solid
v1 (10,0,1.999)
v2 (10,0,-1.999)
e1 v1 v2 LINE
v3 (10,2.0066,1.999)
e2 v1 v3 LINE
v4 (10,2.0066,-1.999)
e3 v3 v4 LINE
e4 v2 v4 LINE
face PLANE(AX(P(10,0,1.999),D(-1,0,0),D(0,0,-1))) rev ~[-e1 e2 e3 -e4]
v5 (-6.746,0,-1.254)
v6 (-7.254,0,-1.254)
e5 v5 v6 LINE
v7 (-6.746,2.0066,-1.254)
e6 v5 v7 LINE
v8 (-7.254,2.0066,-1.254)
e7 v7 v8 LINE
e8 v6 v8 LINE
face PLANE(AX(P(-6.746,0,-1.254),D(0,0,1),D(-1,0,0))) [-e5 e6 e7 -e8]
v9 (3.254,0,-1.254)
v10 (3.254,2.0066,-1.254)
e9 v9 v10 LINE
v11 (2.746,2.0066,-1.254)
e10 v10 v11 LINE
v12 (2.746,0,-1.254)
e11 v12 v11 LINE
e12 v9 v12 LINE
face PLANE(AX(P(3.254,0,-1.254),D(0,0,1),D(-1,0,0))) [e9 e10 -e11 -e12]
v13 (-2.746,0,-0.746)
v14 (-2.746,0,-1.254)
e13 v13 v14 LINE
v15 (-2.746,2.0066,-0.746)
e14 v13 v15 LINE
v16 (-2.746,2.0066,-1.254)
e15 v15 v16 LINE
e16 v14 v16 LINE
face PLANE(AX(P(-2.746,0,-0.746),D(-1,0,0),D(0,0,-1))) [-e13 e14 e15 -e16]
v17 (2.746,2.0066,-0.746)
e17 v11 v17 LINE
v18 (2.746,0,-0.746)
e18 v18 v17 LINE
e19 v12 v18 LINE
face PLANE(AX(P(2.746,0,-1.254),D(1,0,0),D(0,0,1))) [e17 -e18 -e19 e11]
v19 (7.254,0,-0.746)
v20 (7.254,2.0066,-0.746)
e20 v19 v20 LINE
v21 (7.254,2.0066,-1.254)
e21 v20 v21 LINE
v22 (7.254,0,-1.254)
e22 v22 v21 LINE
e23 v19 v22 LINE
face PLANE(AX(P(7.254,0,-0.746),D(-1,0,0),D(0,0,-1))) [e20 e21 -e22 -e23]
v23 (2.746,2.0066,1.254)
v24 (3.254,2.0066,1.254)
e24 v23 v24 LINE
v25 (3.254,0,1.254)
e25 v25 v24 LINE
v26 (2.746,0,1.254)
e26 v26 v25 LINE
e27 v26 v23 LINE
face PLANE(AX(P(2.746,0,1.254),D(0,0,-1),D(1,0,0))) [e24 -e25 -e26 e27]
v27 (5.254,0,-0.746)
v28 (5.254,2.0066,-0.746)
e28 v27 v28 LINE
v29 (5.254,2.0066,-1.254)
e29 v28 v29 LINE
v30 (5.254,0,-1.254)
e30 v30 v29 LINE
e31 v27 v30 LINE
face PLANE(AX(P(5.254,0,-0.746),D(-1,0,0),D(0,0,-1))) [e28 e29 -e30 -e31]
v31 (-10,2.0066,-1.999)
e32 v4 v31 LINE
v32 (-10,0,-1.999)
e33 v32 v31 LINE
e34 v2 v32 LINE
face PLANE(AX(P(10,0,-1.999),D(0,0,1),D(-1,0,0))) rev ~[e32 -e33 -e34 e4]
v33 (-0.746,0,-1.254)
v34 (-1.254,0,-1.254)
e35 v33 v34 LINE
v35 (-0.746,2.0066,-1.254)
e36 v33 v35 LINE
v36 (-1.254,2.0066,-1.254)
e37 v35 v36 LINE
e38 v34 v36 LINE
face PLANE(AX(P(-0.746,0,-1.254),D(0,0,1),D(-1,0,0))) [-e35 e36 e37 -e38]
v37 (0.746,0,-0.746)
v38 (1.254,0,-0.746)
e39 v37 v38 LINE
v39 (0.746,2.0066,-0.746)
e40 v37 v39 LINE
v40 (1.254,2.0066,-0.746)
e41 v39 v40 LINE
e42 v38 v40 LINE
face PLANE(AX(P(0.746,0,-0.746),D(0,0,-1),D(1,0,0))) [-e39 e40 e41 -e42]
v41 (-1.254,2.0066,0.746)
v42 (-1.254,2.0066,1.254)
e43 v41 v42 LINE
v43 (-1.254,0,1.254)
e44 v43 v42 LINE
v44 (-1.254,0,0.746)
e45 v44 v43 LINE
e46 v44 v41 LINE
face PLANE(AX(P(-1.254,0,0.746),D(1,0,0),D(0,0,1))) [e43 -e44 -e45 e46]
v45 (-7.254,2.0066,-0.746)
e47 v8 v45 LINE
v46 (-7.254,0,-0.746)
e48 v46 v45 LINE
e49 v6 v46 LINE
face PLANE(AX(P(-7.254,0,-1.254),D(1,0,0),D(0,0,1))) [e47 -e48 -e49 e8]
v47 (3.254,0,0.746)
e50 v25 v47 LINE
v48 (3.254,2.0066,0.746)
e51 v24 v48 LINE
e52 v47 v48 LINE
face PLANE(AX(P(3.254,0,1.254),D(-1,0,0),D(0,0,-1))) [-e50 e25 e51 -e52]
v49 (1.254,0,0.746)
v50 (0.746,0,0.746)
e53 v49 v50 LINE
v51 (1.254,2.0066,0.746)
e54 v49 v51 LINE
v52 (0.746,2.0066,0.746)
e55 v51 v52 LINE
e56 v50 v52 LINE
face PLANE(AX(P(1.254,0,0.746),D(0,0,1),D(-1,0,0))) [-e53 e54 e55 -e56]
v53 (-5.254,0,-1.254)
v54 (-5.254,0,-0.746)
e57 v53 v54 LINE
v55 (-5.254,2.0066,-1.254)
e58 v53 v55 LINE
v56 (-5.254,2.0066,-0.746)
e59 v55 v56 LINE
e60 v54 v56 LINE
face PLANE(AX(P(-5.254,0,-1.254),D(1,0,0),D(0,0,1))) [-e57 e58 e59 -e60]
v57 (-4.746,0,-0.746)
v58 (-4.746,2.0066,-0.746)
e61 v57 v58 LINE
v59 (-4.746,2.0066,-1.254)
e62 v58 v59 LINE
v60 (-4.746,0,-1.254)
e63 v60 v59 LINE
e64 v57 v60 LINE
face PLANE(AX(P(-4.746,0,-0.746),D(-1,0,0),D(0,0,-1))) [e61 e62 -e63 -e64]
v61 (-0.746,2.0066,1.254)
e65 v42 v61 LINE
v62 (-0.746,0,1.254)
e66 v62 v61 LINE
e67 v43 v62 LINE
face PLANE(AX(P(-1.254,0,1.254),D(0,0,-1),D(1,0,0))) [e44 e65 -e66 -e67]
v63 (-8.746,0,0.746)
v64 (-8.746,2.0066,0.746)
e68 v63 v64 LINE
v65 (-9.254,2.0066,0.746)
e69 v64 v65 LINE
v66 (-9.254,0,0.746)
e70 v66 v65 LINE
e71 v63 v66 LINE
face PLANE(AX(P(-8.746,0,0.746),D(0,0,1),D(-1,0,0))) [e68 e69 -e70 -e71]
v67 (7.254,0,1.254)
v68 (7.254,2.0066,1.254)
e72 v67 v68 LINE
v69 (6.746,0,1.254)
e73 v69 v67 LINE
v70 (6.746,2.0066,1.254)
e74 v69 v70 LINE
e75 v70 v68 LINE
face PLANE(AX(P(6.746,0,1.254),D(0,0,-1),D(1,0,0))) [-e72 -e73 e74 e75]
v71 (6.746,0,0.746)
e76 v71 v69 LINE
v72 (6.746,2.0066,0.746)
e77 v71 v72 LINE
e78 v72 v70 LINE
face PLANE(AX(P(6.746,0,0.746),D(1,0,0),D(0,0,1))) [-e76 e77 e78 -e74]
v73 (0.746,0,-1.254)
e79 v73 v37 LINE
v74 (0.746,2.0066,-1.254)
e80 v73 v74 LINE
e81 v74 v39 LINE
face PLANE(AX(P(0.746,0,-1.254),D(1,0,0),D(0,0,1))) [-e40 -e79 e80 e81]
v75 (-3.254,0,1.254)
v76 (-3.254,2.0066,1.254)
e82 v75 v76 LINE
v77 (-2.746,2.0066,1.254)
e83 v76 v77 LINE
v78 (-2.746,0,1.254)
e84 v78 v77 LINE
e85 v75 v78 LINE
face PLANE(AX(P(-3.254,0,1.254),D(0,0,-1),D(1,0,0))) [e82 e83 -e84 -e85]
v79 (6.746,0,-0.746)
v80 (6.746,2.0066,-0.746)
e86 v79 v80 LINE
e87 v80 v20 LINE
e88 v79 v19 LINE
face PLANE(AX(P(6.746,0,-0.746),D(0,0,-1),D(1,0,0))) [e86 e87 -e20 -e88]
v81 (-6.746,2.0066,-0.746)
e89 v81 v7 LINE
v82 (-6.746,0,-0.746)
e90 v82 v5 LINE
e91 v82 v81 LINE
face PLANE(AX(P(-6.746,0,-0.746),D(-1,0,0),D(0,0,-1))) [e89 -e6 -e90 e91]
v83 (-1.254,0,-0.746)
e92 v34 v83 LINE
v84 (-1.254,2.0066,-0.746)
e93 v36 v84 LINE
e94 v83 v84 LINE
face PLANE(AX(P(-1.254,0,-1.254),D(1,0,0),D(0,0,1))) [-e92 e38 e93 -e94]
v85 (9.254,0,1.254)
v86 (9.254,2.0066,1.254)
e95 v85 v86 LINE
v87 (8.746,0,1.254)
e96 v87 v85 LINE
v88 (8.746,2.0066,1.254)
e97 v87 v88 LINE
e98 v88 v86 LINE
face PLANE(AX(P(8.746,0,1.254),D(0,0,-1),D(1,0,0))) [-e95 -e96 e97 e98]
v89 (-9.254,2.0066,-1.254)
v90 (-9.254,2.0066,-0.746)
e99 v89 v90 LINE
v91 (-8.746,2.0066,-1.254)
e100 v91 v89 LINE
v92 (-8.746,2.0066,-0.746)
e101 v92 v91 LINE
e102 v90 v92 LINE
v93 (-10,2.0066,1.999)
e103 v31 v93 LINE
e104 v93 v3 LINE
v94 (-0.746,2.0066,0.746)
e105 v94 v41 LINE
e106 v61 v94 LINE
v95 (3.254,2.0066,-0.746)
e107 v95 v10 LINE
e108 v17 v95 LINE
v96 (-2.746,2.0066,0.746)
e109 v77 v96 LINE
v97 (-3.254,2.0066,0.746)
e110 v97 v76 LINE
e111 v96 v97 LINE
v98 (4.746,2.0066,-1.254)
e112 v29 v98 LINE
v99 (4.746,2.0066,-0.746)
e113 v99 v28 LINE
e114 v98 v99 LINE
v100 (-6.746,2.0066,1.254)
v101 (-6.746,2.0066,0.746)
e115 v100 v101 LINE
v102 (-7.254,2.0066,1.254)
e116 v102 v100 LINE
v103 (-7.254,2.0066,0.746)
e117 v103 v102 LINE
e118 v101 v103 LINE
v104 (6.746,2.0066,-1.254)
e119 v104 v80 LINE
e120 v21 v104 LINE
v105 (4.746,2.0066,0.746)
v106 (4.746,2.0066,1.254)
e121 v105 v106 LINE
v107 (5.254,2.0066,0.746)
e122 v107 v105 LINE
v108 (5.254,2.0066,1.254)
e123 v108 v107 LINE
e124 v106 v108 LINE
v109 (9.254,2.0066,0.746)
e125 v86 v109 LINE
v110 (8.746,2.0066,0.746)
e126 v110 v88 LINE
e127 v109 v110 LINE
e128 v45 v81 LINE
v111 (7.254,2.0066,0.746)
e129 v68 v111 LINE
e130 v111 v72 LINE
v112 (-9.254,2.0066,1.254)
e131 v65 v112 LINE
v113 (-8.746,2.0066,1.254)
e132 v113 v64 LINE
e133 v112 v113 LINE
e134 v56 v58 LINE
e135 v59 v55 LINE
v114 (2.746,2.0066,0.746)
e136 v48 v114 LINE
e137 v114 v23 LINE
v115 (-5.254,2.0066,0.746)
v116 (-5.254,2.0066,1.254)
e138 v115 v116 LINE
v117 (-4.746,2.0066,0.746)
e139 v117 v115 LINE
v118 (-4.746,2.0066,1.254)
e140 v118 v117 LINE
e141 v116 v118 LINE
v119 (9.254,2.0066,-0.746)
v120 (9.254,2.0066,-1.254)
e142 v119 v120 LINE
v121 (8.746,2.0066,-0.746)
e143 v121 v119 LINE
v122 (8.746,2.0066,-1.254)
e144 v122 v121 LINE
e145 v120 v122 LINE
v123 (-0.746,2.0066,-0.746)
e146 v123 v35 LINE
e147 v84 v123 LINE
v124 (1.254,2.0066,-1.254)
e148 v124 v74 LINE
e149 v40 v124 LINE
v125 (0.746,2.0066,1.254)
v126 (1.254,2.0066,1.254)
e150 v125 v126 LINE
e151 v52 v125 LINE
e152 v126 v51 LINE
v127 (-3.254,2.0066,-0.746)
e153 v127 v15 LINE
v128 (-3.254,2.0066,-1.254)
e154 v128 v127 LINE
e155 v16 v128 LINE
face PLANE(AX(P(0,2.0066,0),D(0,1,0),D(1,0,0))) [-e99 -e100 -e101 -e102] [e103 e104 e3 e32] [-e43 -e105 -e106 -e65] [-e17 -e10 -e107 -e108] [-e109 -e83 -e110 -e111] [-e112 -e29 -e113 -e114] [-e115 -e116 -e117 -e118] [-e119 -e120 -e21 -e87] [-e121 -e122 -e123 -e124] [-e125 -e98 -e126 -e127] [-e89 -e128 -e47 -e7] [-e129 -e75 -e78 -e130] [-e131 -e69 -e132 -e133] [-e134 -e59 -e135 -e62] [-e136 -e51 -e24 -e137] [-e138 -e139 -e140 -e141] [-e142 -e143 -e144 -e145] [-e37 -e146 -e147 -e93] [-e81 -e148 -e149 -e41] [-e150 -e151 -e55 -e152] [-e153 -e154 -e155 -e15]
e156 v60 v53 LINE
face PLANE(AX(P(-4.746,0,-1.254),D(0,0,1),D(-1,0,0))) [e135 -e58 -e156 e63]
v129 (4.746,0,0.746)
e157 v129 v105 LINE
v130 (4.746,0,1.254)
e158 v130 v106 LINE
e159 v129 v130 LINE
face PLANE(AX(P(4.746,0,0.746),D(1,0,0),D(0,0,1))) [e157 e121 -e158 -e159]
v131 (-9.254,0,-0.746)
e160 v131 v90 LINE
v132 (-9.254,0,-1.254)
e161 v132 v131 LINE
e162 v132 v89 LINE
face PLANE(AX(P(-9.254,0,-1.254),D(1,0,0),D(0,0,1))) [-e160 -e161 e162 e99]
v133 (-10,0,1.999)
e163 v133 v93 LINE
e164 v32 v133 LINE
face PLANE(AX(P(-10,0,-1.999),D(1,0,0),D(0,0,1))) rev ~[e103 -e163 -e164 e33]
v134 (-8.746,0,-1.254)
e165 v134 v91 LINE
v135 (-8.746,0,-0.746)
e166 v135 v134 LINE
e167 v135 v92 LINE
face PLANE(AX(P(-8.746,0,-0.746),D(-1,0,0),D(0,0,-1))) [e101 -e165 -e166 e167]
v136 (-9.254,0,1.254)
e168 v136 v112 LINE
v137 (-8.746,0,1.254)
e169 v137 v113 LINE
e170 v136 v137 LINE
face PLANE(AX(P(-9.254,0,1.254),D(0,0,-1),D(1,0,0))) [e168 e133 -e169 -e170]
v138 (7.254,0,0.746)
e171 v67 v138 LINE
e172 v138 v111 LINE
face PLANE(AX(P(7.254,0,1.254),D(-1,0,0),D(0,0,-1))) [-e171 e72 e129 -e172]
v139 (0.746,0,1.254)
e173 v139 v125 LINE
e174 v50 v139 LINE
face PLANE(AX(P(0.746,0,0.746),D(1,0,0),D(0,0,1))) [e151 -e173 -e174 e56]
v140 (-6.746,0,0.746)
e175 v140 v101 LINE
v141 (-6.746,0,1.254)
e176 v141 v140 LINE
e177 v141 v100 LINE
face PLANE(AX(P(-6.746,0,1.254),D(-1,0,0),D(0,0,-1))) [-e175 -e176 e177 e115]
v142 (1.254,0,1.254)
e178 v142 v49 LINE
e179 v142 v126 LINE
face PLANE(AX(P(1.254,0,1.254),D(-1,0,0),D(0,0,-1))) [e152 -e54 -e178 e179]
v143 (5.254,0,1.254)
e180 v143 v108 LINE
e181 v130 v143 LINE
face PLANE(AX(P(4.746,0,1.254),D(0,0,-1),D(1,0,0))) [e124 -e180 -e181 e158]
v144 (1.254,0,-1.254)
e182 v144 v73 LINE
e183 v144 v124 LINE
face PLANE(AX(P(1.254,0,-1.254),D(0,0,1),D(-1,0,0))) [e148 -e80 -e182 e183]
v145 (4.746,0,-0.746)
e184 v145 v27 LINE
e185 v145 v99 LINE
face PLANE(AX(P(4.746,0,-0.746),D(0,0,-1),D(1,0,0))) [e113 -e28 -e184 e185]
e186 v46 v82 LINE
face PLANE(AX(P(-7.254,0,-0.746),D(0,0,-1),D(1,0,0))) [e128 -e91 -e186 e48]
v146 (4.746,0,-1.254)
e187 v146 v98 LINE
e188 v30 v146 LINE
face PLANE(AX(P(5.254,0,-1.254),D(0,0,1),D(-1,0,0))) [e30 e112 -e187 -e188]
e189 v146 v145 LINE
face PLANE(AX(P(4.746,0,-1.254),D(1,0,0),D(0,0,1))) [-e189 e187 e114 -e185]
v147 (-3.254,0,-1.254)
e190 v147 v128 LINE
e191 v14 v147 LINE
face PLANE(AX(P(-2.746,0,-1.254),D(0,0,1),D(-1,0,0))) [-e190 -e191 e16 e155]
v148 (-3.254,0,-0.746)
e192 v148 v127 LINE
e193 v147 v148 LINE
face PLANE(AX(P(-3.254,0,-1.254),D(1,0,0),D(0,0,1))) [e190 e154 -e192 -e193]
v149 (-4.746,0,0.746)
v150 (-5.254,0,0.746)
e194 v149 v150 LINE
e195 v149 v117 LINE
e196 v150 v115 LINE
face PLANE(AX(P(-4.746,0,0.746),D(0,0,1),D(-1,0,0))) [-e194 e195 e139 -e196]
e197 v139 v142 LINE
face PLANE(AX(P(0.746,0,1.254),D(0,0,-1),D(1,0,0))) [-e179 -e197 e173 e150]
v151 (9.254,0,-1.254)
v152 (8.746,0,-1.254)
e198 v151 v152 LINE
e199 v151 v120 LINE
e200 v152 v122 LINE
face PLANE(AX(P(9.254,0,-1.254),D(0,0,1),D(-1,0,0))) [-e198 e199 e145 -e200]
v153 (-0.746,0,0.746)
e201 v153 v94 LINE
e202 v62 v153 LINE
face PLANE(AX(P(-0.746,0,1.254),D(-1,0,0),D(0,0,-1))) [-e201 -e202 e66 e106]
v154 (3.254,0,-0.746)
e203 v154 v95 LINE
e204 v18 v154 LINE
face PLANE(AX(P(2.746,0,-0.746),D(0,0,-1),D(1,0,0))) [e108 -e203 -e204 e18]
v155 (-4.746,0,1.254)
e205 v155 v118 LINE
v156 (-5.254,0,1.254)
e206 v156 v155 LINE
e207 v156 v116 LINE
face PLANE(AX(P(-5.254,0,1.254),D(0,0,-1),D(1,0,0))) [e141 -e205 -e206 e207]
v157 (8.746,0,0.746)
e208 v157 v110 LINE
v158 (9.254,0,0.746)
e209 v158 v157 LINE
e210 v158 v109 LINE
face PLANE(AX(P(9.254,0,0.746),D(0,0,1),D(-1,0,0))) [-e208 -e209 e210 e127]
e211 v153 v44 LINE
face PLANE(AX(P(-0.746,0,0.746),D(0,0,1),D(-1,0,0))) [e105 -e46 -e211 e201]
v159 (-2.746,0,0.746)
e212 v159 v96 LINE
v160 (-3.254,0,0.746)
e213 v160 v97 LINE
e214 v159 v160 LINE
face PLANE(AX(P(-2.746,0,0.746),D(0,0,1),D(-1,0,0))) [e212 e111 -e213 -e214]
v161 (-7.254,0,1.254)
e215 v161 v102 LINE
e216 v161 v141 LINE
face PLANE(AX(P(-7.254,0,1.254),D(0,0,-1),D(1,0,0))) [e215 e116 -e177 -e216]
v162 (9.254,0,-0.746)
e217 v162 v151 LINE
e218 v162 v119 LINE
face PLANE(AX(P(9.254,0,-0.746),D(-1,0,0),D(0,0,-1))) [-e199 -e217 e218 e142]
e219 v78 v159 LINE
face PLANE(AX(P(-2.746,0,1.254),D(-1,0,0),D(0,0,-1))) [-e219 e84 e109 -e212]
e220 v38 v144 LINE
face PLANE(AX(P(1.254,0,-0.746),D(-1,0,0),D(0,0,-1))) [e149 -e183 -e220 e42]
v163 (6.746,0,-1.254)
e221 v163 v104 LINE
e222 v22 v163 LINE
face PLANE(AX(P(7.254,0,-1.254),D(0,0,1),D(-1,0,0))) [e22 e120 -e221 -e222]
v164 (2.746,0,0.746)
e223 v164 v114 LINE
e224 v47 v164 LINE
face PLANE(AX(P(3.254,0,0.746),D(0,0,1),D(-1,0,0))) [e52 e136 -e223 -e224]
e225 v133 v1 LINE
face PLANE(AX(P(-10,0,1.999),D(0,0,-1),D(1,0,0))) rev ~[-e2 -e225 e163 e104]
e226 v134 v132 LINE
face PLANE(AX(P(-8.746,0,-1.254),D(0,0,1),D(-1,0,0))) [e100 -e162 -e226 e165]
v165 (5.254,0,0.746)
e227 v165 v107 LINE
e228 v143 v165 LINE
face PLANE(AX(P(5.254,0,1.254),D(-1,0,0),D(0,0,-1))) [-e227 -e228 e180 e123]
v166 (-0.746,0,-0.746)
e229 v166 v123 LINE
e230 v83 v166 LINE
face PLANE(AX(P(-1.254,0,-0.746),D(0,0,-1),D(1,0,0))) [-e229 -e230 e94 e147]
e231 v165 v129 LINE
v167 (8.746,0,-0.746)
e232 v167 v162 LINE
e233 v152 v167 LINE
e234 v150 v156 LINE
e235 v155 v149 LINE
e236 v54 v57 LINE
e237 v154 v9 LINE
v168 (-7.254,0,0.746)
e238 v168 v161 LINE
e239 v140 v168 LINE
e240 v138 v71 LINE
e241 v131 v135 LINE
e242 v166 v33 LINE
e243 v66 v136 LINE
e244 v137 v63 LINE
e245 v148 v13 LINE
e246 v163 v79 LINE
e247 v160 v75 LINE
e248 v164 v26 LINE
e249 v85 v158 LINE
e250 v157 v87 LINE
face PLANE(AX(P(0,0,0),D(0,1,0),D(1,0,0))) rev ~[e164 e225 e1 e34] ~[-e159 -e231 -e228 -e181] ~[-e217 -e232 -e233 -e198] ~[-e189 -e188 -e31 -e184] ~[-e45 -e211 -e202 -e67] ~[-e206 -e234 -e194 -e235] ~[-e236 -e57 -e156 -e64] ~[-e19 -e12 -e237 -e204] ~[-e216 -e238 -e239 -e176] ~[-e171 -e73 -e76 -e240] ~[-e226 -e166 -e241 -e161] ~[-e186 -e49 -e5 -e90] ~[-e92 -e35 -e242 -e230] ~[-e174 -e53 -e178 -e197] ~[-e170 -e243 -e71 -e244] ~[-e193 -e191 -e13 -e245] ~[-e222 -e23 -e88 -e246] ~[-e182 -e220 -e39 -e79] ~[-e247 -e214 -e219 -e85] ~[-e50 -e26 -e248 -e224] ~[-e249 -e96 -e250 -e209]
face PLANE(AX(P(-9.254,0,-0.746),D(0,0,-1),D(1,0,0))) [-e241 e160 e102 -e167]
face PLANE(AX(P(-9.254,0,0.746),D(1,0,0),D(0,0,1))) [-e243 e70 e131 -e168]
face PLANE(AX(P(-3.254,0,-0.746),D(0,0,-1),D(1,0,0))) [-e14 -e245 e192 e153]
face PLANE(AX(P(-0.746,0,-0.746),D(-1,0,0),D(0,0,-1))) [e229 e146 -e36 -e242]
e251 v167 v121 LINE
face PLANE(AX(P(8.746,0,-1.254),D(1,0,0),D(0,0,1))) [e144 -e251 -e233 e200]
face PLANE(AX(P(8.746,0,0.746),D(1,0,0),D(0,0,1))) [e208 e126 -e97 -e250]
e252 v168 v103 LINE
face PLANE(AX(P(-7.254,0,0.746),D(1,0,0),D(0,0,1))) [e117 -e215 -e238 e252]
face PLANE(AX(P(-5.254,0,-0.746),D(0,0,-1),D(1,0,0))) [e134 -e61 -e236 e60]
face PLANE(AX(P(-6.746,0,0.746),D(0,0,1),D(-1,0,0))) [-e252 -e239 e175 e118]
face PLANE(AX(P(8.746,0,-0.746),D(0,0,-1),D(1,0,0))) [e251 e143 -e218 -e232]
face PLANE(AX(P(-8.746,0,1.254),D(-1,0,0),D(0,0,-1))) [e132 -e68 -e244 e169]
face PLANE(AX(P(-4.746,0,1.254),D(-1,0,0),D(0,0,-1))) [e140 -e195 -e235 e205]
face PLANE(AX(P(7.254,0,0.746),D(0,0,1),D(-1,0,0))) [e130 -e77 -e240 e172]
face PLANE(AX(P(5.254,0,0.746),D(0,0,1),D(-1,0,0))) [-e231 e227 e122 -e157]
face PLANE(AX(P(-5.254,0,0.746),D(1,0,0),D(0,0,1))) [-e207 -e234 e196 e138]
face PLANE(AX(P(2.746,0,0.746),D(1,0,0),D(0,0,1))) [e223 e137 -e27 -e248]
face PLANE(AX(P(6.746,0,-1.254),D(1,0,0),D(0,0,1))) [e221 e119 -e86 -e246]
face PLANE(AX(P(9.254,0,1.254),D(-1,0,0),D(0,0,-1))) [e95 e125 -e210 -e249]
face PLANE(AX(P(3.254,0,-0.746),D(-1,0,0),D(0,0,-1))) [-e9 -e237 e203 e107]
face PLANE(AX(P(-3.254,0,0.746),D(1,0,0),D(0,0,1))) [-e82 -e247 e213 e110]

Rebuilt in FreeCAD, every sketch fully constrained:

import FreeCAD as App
import Part
import Sketcher
Q = App.Units.Quantity

doc = App.newDocument("Part")
body = doc.addObject("PartDesign::Body", "Body")

# Sketch on XZ plane
sketch1 = body.newObject("Sketcher::SketchObject", "Sketch")
sketch1.AttachmentSupport = (doc.getObject("XZ_Plane"), [""])
sketch1.MapMode = "FlatFace"
sketch1.addGeometry(Part.LineSegment(App.Vector(-10, -2, 0), App.Vector(-10, 2, 0)), False)
sketch1.addGeometry(Part.LineSegment(App.Vector(-10, 2, 0), App.Vector(10, 2, 0)), False)
sketch1.addGeometry(Part.LineSegment(App.Vector(10, 2, 0), App.Vector(10, -2, 0)), False)
sketch1.addGeometry(Part.LineSegment(App.Vector(10, -2, 0), App.Vector(-10, -2, 0)), False)
sketch1.addGeometry(Part.LineSegment(App.Vector(-8.7, 1.3, 0), App.Vector(-9.3, 1.3, 0)), False)
sketch1.addGeometry(Part.LineSegment(App.Vector(-9.3, 1.3, 0), App.Vector(-9.3, 0.7, 0)), False)
sketch1.addGeometry(Part.LineSegment(App.Vector(-9.3, 0.7, 0), App.Vector(-8.7, 0.7, 0)), False)
sketch1.addGeometry(Part.LineSegment(App.Vector(-8.7, 0.7, 0), App.Vector(-8.7, 1.3, 0)), False)
sketch1.addGeometry(Part.LineSegment(App.Vector(-6.7, 1.3, 0), App.Vector(-7.3, 1.3, 0)), False)
sketch1.addGeometry(Part.LineSegment(App.Vector(-7.3, 1.3, 0), App.Vector(-7.3, 0.7, 0)), False)
sketch1.addGeometry(Part.LineSegment(App.Vector(-7.3, 0.7, 0), App.Vector(-6.7, 0.7, 0)), False)
sketch1.addGeometry(Part.LineSegment(App.Vector(-6.7, 0.7, 0), App.Vector(-6.7, 1.3, 0)), False)
sketch1.addGeometry(Part.LineSegment(App.Vector(-4.7, 1.3, 0), App.Vector(-5.3, 1.3, 0)), False)
sketch1.addGeometry(Part.LineSegment(App.Vector(-5.3, 1.3, 0), App.Vector(-5.3, 0.7, 0)), False)
sketch1.addGeometry(Part.LineSegment(App.Vector(-5.3, 0.7, 0), App.Vector(-4.7, 0.7, 0)), False)
sketch1.addGeometry(Part.LineSegment(App.Vector(-4.7, 0.7, 0), App.Vector(-4.7, 1.3, 0)), False)
sketch1.addGeometry(Part.LineSegment(App.Vector(-2.7, 1.3, 0), App.Vector(-3.3, 1.3, 0)), False)
sketch1.addGeometry(Part.LineSegment(App.Vector(-3.3, 1.3, 0), App.Vector(-3.3, 0.7, 0)), False)
sketch1.addGeometry(Part.LineSegment(App.Vector(-3.3, 0.7, 0), App.Vector(-2.7, 0.7, 0)), False)
sketch1.addGeometry(Part.LineSegment(App.Vector(-2.7, 0.7, 0), App.Vector(-2.7, 1.3, 0)), False)
sketch1.addGeometry(Part.LineSegment(App.Vector(-0.7, 1.3, 0), App.Vector(-1.3, 1.3, 0)), False)
sketch1.addGeometry(Part.LineSegment(App.Vector(-1.3, 1.3, 0), App.Vector(-1.3, 0.7, 0)), False)
sketch1.addGeometry(Part.LineSegment(App.Vector(-1.3, 0.7, 0), App.Vector(-0.7, 0.7, 0)), False)
sketch1.addGeometry(Part.LineSegment(App.Vector(-0.7, 0.7, 0), App.Vector(-0.7, 1.3, 0)), False)
sketch1.addGeometry(Part.LineSegment(App.Vector(1.3, 1.3, 0), App.Vector(0.7, 1.3, 0)), False)
sketch1.addGeometry(Part.LineSegment(App.Vector(0.7, 1.3, 0), App.Vector(0.7, 0.7, 0)), False)
sketch1.addGeometry(Part.LineSegment(App.Vector(0.7, 0.7, 0), App.Vector(1.3, 0.7, 0)), False)
sketch1.addGeometry(Part.LineSegment(App.Vector(1.3, 0.7, 0), App.Vector(1.3, 1.3, 0)), False)
sketch1.addGeometry(Part.LineSegment(App.Vector(3.3, 1.3, 0), App.Vector(2.7, 1.3, 0)), False)
sketch1.addGeometry(Part.LineSegment(App.Vector(2.7, 1.3, 0), App.Vector(2.7, 0.7, 0)), False)
sketch1.addGeometry(Part.LineSegment(App.Vector(2.7, 0.7, 0), App.Vector(3.3, 0.7, 0)), False)
sketch1.addGeometry(Part.LineSegment(App.Vector(3.3, 0.7, 0), App.Vector(3.3, 1.3, 0)), False)
sketch1.addGeometry(Part.LineSegment(App.Vector(5.3, 1.3, 0), App.Vector(4.7, 1.3, 0)), False)
sketch1.addGeometry(Part.LineSegment(App.Vector(4.7, 1.3, 0), App.Vector(4.7, 0.7, 0)), False)
sketch1.addGeometry(Part.LineSegment(App.Vector(4.7, 0.7, 0), App.Vector(5.3, 0.7, 0)), False)
sketch1.addGeometry(Part.LineSegment(App.Vector(5.3, 0.7, 0), App.Vector(5.3, 1.3, 0)), False)
sketch1.addGeometry(Part.LineSegment(App.Vector(7.3, 1.3, 0), App.Vector(6.7, 1.3, 0)), False)
sketch1.addGeometry(Part.LineSegment(App.Vector(6.7, 1.3, 0), App.Vector(6.7, 0.7, 0)), False)
sketch1.addGeometry(Part.LineSegment(App.Vector(6.7, 0.7, 0), App.Vector(7.3, 0.7, 0)), False)
sketch1.addGeometry(Part.LineSegment(App.Vector(7.3, 0.7, 0), App.Vector(7.3, 1.3, 0)), False)
sketch1.addGeometry(Part.LineSegment(App.Vector(9.3, 1.3, 0), App.Vector(8.7, 1.3, 0)), False)
sketch1.addGeometry(Part.LineSegment(App.Vector(8.7, 1.3, 0), App.Vector(8.7, 0.7, 0)), False)
sketch1.addGeometry(Part.LineSegment(App.Vector(8.7, 0.7, 0), App.Vector(9.3, 0.7, 0)), False)
sketch1.addGeometry(Part.LineSegment(App.Vector(9.3, 0.7, 0), App.Vector(9.3, 1.3, 0)), False)
sketch1.addGeometry(Part.LineSegment(App.Vector(-8.7, -0.7, 0), App.Vector(-9.3, -0.7, 0)), False)
sketch1.addGeometry(Part.LineSegment(App.Vector(-9.3, -0.7, 0), App.Vector(-9.3, -1.3, 0)), False)
sketch1.addGeometry(Part.LineSegment(App.Vector(-9.3, -1.3, 0), App.Vector(-8.7, -1.3, 0)), False)
sketch1.addGeometry(Part.LineSegment(App.Vector(-8.7, -1.3, 0), App.Vector(-8.7, -0.7, 0)), False)
sketch1.addGeometry(Part.LineSegment(App.Vector(-6.7, -0.7, 0), App.Vector(-7.3, -0.7, 0)), False)
sketch1.addGeometry(Part.LineSegment(App.Vector(-7.3, -0.7, 0), App.Vector(-7.3, -1.3, 0)), False)
sketch1.addGeometry(Part.LineSegment(App.Vector(-7.3, -1.3, 0), App.Vector(-6.7, -1.3, 0)), False)
sketch1.addGeometry(Part.LineSegment(App.Vector(-6.7, -1.3, 0), App.Vector(-6.7, -0.7, 0)), False)
sketch1.addGeometry(Part.LineSegment(App.Vector(-4.7, -0.7, 0), App.Vector(-5.3, -0.7, 0)), False)
sketch1.addGeometry(Part.LineSegment(App.Vector(-5.3, -0.7, 0), App.Vector(-5.3, -1.3, 0)), False)
sketch1.addGeometry(Part.LineSegment(App.Vector(-5.3, -1.3, 0), App.Vector(-4.7, -1.3, 0)), False)
sketch1.addGeometry(Part.LineSegment(App.Vector(-4.7, -1.3, 0), App.Vector(-4.7, -0.7, 0)), False)
sketch1.addGeometry(Part.LineSegment(App.Vector(-2.7, -0.7, 0), App.Vector(-3.3, -0.7, 0)), False)
sketch1.addGeometry(Part.LineSegment(App.Vector(-3.3, -0.7, 0), App.Vector(-3.3, -1.3, 0)), False)
sketch1.addGeometry(Part.LineSegment(App.Vector(-3.3, -1.3, 0), App.Vector(-2.7, -1.3, 0)), False)
sketch1.addGeometry(Part.LineSegment(App.Vector(-2.7, -1.3, 0), App.Vector(-2.7, -0.7, 0)), False)
sketch1.addGeometry(Part.LineSegment(App.Vector(-0.7, -0.7, 0), App.Vector(-1.3, -0.7, 0)), False)
sketch1.addGeometry(Part.LineSegment(App.Vector(-1.3, -0.7, 0), App.Vector(-1.3, -1.3, 0)), False)
sketch1.addGeometry(Part.LineSegment(App.Vector(-1.3, -1.3, 0), App.Vector(-0.7, -1.3, 0)), False)
sketch1.addGeometry(Part.LineSegment(App.Vector(-0.7, -1.3, 0), App.Vector(-0.7, -0.7, 0)), False)
sketch1.addGeometry(Part.LineSegment(App.Vector(1.3, -0.7, 0), App.Vector(0.7, -0.7, 0)), False)
sketch1.addGeometry(Part.LineSegment(App.Vector(0.7, -0.7, 0), App.Vector(0.7, -1.3, 0)), False)
sketch1.addGeometry(Part.LineSegment(App.Vector(0.7, -1.3, 0), App.Vector(1.3, -1.3, 0)), False)
sketch1.addGeometry(Part.LineSegment(App.Vector(1.3, -1.3, 0), App.Vector(1.3, -0.7, 0)), False)
sketch1.addGeometry(Part.LineSegment(App.Vector(3.3, -0.7, 0), App.Vector(2.7, -0.7, 0)), False)
sketch1.addGeometry(Part.LineSegment(App.Vector(2.7, -0.7, 0), App.Vector(2.7, -1.3, 0)), False)
sketch1.addGeometry(Part.LineSegment(App.Vector(2.7, -1.3, 0), App.Vector(3.3, -1.3, 0)), False)
sketch1.addGeometry(Part.LineSegment(App.Vector(3.3, -1.3, 0), App.Vector(3.3, -0.7, 0)), False)
sketch1.addGeometry(Part.LineSegment(App.Vector(5.3, -0.7, 0), App.Vector(4.7, -0.7, 0)), False)
sketch1.addGeometry(Part.LineSegment(App.Vector(4.7, -0.7, 0), App.Vector(4.7, -1.3, 0)), False)
sketch1.addGeometry(Part.LineSegment(App.Vector(4.7, -1.3, 0), App.Vector(5.3, -1.3, 0)), False)
sketch1.addGeometry(Part.LineSegment(App.Vector(5.3, -1.3, 0), App.Vector(5.3, -0.7, 0)), False)
sketch1.addGeometry(Part.LineSegment(App.Vector(7.3, -0.7, 0), App.Vector(6.7, -0.7, 0)), False)
sketch1.addGeometry(Part.LineSegment(App.Vector(6.7, -0.7, 0), App.Vector(6.7, -1.3, 0)), False)
sketch1.addGeometry(Part.LineSegment(App.Vector(6.7, -1.3, 0), App.Vector(7.3, -1.3, 0)), False)
sketch1.addGeometry(Part.LineSegment(App.Vector(7.3, -1.3, 0), App.Vector(7.3, -0.7, 0)), False)
sketch1.addGeometry(Part.LineSegment(App.Vector(9.3, -0.7, 0), App.Vector(8.7, -0.7, 0)), False)
sketch1.addGeometry(Part.LineSegment(App.Vector(8.7, -0.7, 0), App.Vector(8.7, -1.3, 0)), False)
sketch1.addGeometry(Part.LineSegment(App.Vector(8.7, -1.3, 0), App.Vector(9.3, -1.3, 0)), False)
sketch1.addGeometry(Part.LineSegment(App.Vector(9.3, -1.3, 0), App.Vector(9.3, -0.7, 0)), False)
sketch1.addConstraint(Sketcher.Constraint("Coincident", 0, 2, 1, 1))
sketch1.addConstraint(Sketcher.Constraint("Coincident", 1, 2, 2, 1))
sketch1.addConstraint(Sketcher.Constraint("Coincident", 2, 2, 3, 1))
sketch1.addConstraint(Sketcher.Constraint("Coincident", 3, 2, 0, 1))
sketch1.addConstraint(Sketcher.Constraint("Coincident", 4, 2, 5, 1))
sketch1.addConstraint(Sketcher.Constraint("Coincident", 5, 2, 6, 1))
sketch1.addConstraint(Sketcher.Constraint("Coincident", 6, 2, 7, 1))
sketch1.addConstraint(Sketcher.Constraint("Coincident", 7, 2, 4, 1))
sketch1.addConstraint(Sketcher.Constraint("Coincident", 8, 2, 9, 1))
sketch1.addConstraint(Sketcher.Constraint("Coincident", 9, 2, 10, 1))
sketch1.addConstraint(Sketcher.Constraint("Coincident", 10, 2, 11, 1))
sketch1.addConstraint(Sketcher.Constraint("Coincident", 11, 2, 8, 1))
sketch1.addConstraint(Sketcher.Constraint("Coincident", 12, 2, 13, 1))
sketch1.addConstraint(Sketcher.Constraint("Coincident", 13, 2, 14, 1))
sketch1.addConstraint(Sketcher.Constraint("Coincident", 14, 2, 15, 1))
sketch1.addConstraint(Sketcher.Constraint("Coincident", 15, 2, 12, 1))
sketch1.addConstraint(Sketcher.Constraint("Coincident", 16, 2, 17, 1))
sketch1.addConstraint(Sketcher.Constraint("Coincident", 17, 2, 18, 1))
sketch1.addConstraint(Sketcher.Constraint("Coincident", 18, 2, 19, 1))
sketch1.addConstraint(Sketcher.Constraint("Coincident", 19, 2, 16, 1))
sketch1.addConstraint(Sketcher.Constraint("Coincident", 20, 2, 21, 1))
sketch1.addConstraint(Sketcher.Constraint("Coincident", 21, 2, 22, 1))
sketch1.addConstraint(Sketcher.Constraint("Coincident", 22, 2, 23, 1))
sketch1.addConstraint(Sketcher.Constraint("Coincident", 23, 2, 20, 1))
sketch1.addConstraint(Sketcher.Constraint("Coincident", 24, 2, 25, 1))
sketch1.addConstraint(Sketcher.Constraint("Coincident", 25, 2, 26, 1))
sketch1.addConstraint(Sketcher.Constraint("Coincident", 26, 2, 27, 1))
sketch1.addConstraint(Sketcher.Constraint("Coincident", 27, 2, 24, 1))
sketch1.addConstraint(Sketcher.Constraint("Coincident", 28, 2, 29, 1))
sketch1.addConstraint(Sketcher.Constraint("Coincident", 29, 2, 30, 1))
sketch1.addConstraint(Sketcher.Constraint("Coincident", 30, 2, 31, 1))
sketch1.addConstraint(Sketcher.Constraint("Coincident", 31, 2, 28, 1))
sketch1.addConstraint(Sketcher.Constraint("Coincident", 32, 2, 33, 1))
sketch1.addConstraint(Sketcher.Constraint("Coincident", 33, 2, 34, 1))
sketch1.addConstraint(Sketcher.Constraint("Coincident", 34, 2, 35, 1))
sketch1.addConstraint(Sketcher.Constraint("Coincident", 35, 2, 32, 1))
sketch1.addConstraint(Sketcher.Constraint("Coincident", 36, 2, 37, 1))
sketch1.addConstraint(Sketcher.Constraint("Coincident", 37, 2, 38, 1))
sketch1.addConstraint(Sketcher.Constraint("Coincident", 38, 2, 39, 1))
sketch1.addConstraint(Sketcher.Constraint("Coincident", 39, 2, 36, 1))
sketch1.addConstraint(Sketcher.Constraint("Coincident", 40, 2, 41, 1))
sketch1.addConstraint(Sketcher.Constraint("Coincident", 41, 2, 42, 1))
sketch1.addConstraint(Sketcher.Constraint("Coincident", 42, 2, 43, 1))
sketch1.addConstraint(Sketcher.Constraint("Coincident", 43, 2, 40, 1))
sketch1.addConstraint(Sketcher.Constraint("Coincident", 44, 2, 45, 1))
sketch1.addConstraint(Sketcher.Constraint("Coincident", 45, 2, 46, 1))
sketch1.addConstraint(Sketcher.Constraint("Coincident", 46, 2, 47, 1))
sketch1.addConstraint(Sketcher.Constraint("Coincident", 47, 2, 44, 1))
sketch1.addConstraint(Sketcher.Constraint("Coincident", 48, 2, 49, 1))
sketch1.addConstraint(Sketcher.Constraint("Coincident", 49, 2, 50, 1))
sketch1.addConstraint(Sketcher.Constraint("Coincident", 50, 2, 51, 1))
sketch1.addConstraint(Sketcher.Constraint("Coincident", 51, 2, 48, 1))
sketch1.addConstraint(Sketcher.Constraint("Coincident", 52, 2, 53, 1))
sketch1.addConstraint(Sketcher.Constraint("Coincident", 53, 2, 54, 1))
sketch1.addConstraint(Sketcher.Constraint("Coincident", 54, 2, 55, 1))
sketch1.addConstraint(Sketcher.Constraint("Coincident", 55, 2, 52, 1))
sketch1.addConstraint(Sketcher.Constraint("Coincident", 56, 2, 57, 1))
sketch1.addConstraint(Sketcher.Constraint("Coincident", 57, 2, 58, 1))
sketch1.addConstraint(Sketcher.Constraint("Coincident", 58, 2, 59, 1))
sketch1.addConstraint(Sketcher.Constraint("Coincident", 59, 2, 56, 1))
sketch1.addConstraint(Sketcher.Constraint("Coincident", 60, 2, 61, 1))
sketch1.addConstraint(Sketcher.Constraint("Coincident", 61, 2, 62, 1))
sketch1.addConstraint(Sketcher.Constraint("Coincident", 62, 2, 63, 1))
sketch1.addConstraint(Sketcher.Constraint("Coincident", 63, 2, 60, 1))
sketch1.addConstraint(Sketcher.Constraint("Coincident", 64, 2, 65, 1))
sketch1.addConstraint(Sketcher.Constraint("Coincident", 65, 2, 66, 1))
sketch1.addConstraint(Sketcher.Constraint("Coincident", 66, 2, 67, 1))
sketch1.addConstraint(Sketcher.Constraint("Coincident", 67, 2, 64, 1))
sketch1.addConstraint(Sketcher.Constraint("Coincident", 68, 2, 69, 1))
sketch1.addConstraint(Sketcher.Constraint("Coincident", 69, 2, 70, 1))
sketch1.addConstraint(Sketcher.Constraint("Coincident", 70, 2, 71, 1))
sketch1.addConstraint(Sketcher.Constraint("Coincident", 71, 2, 68, 1))
sketch1.addConstraint(Sketcher.Constraint("Coincident", 72, 2, 73, 1))
sketch1.addConstraint(Sketcher.Constraint("Coincident", 73, 2, 74, 1))
sketch1.addConstraint(Sketcher.Constraint("Coincident", 74, 2, 75, 1))
sketch1.addConstraint(Sketcher.Constraint("Coincident", 75, 2, 72, 1))
sketch1.addConstraint(Sketcher.Constraint("Coincident", 76, 2, 77, 1))
sketch1.addConstraint(Sketcher.Constraint("Coincident", 77, 2, 78, 1))
sketch1.addConstraint(Sketcher.Constraint("Coincident", 78, 2, 79, 1))
sketch1.addConstraint(Sketcher.Constraint("Coincident", 79, 2, 76, 1))
sketch1.addConstraint(Sketcher.Constraint("Coincident", 80, 2, 81, 1))
sketch1.addConstraint(Sketcher.Constraint("Coincident", 81, 2, 82, 1))
sketch1.addConstraint(Sketcher.Constraint("Coincident", 82, 2, 83, 1))
sketch1.addConstraint(Sketcher.Constraint("Coincident", 83, 2, 80, 1))
sketch1.addConstraint(Sketcher.Constraint("Vertical", 0))
sketch1.addConstraint(Sketcher.Constraint("Horizontal", 1))
sketch1.addConstraint(Sketcher.Constraint("Vertical", 2))
sketch1.addConstraint(Sketcher.Constraint("Horizontal", 3))
sketch1.addConstraint(Sketcher.Constraint("Horizontal", 4))
sketch1.addConstraint(Sketcher.Constraint("Vertical", 5))
sketch1.addConstraint(Sketcher.Constraint("Horizontal", 6))
sketch1.addConstraint(Sketcher.Constraint("Vertical", 7))
sketch1.addConstraint(Sketcher.Constraint("Horizontal", 8))
sketch1.addConstraint(Sketcher.Constraint("Vertical", 9))
sketch1.addConstraint(Sketcher.Constraint("Horizontal", 10))
sketch1.addConstraint(Sketcher.Constraint("Vertical", 11))
sketch1.addConstraint(Sketcher.Constraint("Horizontal", 12))
sketch1.addConstraint(Sketcher.Constraint("Vertical", 13))
sketch1.addConstraint(Sketcher.Constraint("Horizontal", 14))
sketch1.addConstraint(Sketcher.Constraint("Vertical", 15))
sketch1.addConstraint(Sketcher.Constraint("Horizontal", 16))
sketch1.addConstraint(Sketcher.Constraint("Vertical", 17))
sketch1.addConstraint(Sketcher.Constraint("Horizontal", 18))
sketch1.addConstraint(Sketcher.Constraint("Vertical", 19))
sketch1.addConstraint(Sketcher.Constraint("Horizontal", 20))
sketch1.addConstraint(Sketcher.Constraint("Vertical", 21))
sketch1.addConstraint(Sketcher.Constraint("Horizontal", 22))
sketch1.addConstraint(Sketcher.Constraint("Vertical", 23))
sketch1.addConstraint(Sketcher.Constraint("Horizontal", 24))
sketch1.addConstraint(Sketcher.Constraint("Vertical", 25))
sketch1.addConstraint(Sketcher.Constraint("Horizontal", 26))
sketch1.addConstraint(Sketcher.Constraint("Vertical", 27))
sketch1.addConstraint(Sketcher.Constraint("Horizontal", 28))
sketch1.addConstraint(Sketcher.Constraint("Vertical", 29))
sketch1.addConstraint(Sketcher.Constraint("Horizontal", 30))
sketch1.addConstraint(Sketcher.Constraint("Vertical", 31))
sketch1.addConstraint(Sketcher.Constraint("Horizontal", 32))
sketch1.addConstraint(Sketcher.Constraint("Vertical", 33))
sketch1.addConstraint(Sketcher.Constraint("Horizontal", 34))
sketch1.addConstraint(Sketcher.Constraint("Vertical", 35))
sketch1.addConstraint(Sketcher.Constraint("Horizontal", 36))
sketch1.addConstraint(Sketcher.Constraint("Vertical", 37))
sketch1.addConstraint(Sketcher.Constraint("Horizontal", 38))
sketch1.addConstraint(Sketcher.Constraint("Vertical", 39))
sketch1.addConstraint(Sketcher.Constraint("Horizontal", 40))
sketch1.addConstraint(Sketcher.Constraint("Vertical", 41))
sketch1.addConstraint(Sketcher.Constraint("Horizontal", 42))
sketch1.addConstraint(Sketcher.Constraint("Vertical", 43))
sketch1.addConstraint(Sketcher.Constraint("Horizontal", 44))
sketch1.addConstraint(Sketcher.Constraint("Vertical", 45))
sketch1.addConstraint(Sketcher.Constraint("Horizontal", 46))
sketch1.addConstraint(Sketcher.Constraint("Vertical", 47))
sketch1.addConstraint(Sketcher.Constraint("Horizontal", 48))
sketch1.addConstraint(Sketcher.Constraint("Vertical", 49))
sketch1.addConstraint(Sketcher.Constraint("Horizontal", 50))
sketch1.addConstraint(Sketcher.Constraint("Vertical", 51))
sketch1.addConstraint(Sketcher.Constraint("Horizontal", 52))
sketch1.addConstraint(Sketcher.Constraint("Vertical", 53))
sketch1.addConstraint(Sketcher.Constraint("Horizontal", 54))
sketch1.addConstraint(Sketcher.Constraint("Vertical", 55))
sketch1.addConstraint(Sketcher.Constraint("Horizontal", 56))
sketch1.addConstraint(Sketcher.Constraint("Vertical", 57))
sketch1.addConstraint(Sketcher.Constraint("Horizontal", 58))
sketch1.addConstraint(Sketcher.Constraint("Vertical", 59))
sketch1.addConstraint(Sketcher.Constraint("Horizontal", 60))
sketch1.addConstraint(Sketcher.Constraint("Vertical", 61))
sketch1.addConstraint(Sketcher.Constraint("Horizontal", 62))
sketch1.addConstraint(Sketcher.Constraint("Vertical", 63))
sketch1.addConstraint(Sketcher.Constraint("Horizontal", 64))
sketch1.addConstraint(Sketcher.Constraint("Vertical", 65))
sketch1.addConstraint(Sketcher.Constraint("Horizontal", 66))
sketch1.addConstraint(Sketcher.Constraint("Vertical", 67))
sketch1.addConstraint(Sketcher.Constraint("Horizontal", 68))
sketch1.addConstraint(Sketcher.Constraint("Vertical", 69))
sketch1.addConstraint(Sketcher.Constraint("Horizontal", 70))
sketch1.addConstraint(Sketcher.Constraint("Vertical", 71))
sketch1.addConstraint(Sketcher.Constraint("Horizontal", 72))
sketch1.addConstraint(Sketcher.Constraint("Vertical", 73))
sketch1.addConstraint(Sketcher.Constraint("Horizontal", 74))
sketch1.addConstraint(Sketcher.Constraint("Vertical", 75))
sketch1.addConstraint(Sketcher.Constraint("Horizontal", 76))
sketch1.addConstraint(Sketcher.Constraint("Vertical", 77))
sketch1.addConstraint(Sketcher.Constraint("Horizontal", 78))
sketch1.addConstraint(Sketcher.Constraint("Vertical", 79))
sketch1.addConstraint(Sketcher.Constraint("Horizontal", 80))
sketch1.addConstraint(Sketcher.Constraint("Vertical", 81))
sketch1.addConstraint(Sketcher.Constraint("Horizontal", 82))
sketch1.addConstraint(Sketcher.Constraint("Vertical", 83))
sketch1.addConstraint(Sketcher.Constraint("Symmetric", 0, 2, 2, 2, -1, 1))
sketch1.addConstraint(Sketcher.Constraint("Symmetric", 42, 2, 44, 2, -1, 1))
sketch1.addConstraint(Sketcher.Constraint("Symmetric", 40, 2, 46, 2, -1, 1))
sketch1.addConstraint(Sketcher.Constraint("Symmetric", 38, 2, 48, 2, -1, 1))
sketch1.addConstraint(Sketcher.Constraint("Symmetric", 36, 2, 50, 2, -1, 1))
sketch1.addConstraint(Sketcher.Constraint("Symmetric", 34, 2, 52, 2, -1, 1))
sketch1.addConstraint(Sketcher.Constraint("Symmetric", 32, 2, 54, 2, -1, 1))
sketch1.addConstraint(Sketcher.Constraint("Symmetric", 30, 2, 56, 2, -1, 1))
sketch1.addConstraint(Sketcher.Constraint("Symmetric", 28, 2, 58, 2, -1, 1))
sketch1.addConstraint(Sketcher.Constraint("Symmetric", 26, 2, 60, 2, -1, 1))
sketch1.addConstraint(Sketcher.Constraint("Symmetric", 24, 2, 62, 2, -1, 1))
sketch1.addConstraint(Sketcher.Constraint("Symmetric", 22, 2, 64, 2, -1, 1))
sketch1.addConstraint(Sketcher.Constraint("Symmetric", 20, 2, 66, 2, -1, 1))
sketch1.addConstraint(Sketcher.Constraint("Symmetric", 18, 2, 68, 2, -1, 1))
sketch1.addConstraint(Sketcher.Constraint("Symmetric", 16, 2, 70, 2, -1, 1))
sketch1.addConstraint(Sketcher.Constraint("Symmetric", 14, 2, 72, 2, -1, 1))
sketch1.addConstraint(Sketcher.Constraint("Symmetric", 12, 2, 74, 2, -1, 1))
sketch1.addConstraint(Sketcher.Constraint("Symmetric", 10, 2, 76, 2, -1, 1))
sketch1.addConstraint(Sketcher.Constraint("Symmetric", 8, 2, 78, 2, -1, 1))
sketch1.addConstraint(Sketcher.Constraint("Symmetric", 6, 2, 80, 2, -1, 1))
sketch1.addConstraint(Sketcher.Constraint("Symmetric", 4, 2, 82, 2, -1, 1))
sketch1.addConstraint(Sketcher.Constraint("Symmetric", 23, 2, 24, 2, -2))
sketch1.addConstraint(Sketcher.Constraint("Symmetric", 21, 2, 26, 2, -2))
sketch1.addConstraint(Sketcher.Constraint("Symmetric", 19, 2, 28, 2, -2))
sketch1.addConstraint(Sketcher.Constraint("Symmetric", 17, 2, 30, 2, -2))
sketch1.addConstraint(Sketcher.Constraint("Symmetric", 15, 2, 32, 2, -2))
sketch1.addConstraint(Sketcher.Constraint("Symmetric", 13, 2, 34, 2, -2))
sketch1.addConstraint(Sketcher.Constraint("Symmetric", 11, 2, 36, 2, -2))
sketch1.addConstraint(Sketcher.Constraint("Symmetric", 9, 2, 38, 2, -2))
sketch1.addConstraint(Sketcher.Constraint("Symmetric", 7, 2, 40, 2, -2))
sketch1.addConstraint(Sketcher.Constraint("Symmetric", 5, 2, 42, 2, -2))
sketch1.addConstraint(Sketcher.Constraint("Horizontal", 7, 2, 8, 2))
sketch1.addConstraint(Sketcher.Constraint("Horizontal", 6, 2, 9, 2))
sketch1.addConstraint(Sketcher.Constraint("Horizontal", 11, 2, 12, 2))
sketch1.addConstraint(Sketcher.Constraint("Horizontal", 10, 2, 13, 2))
sketch1.addConstraint(Sketcher.Constraint("Horizontal", 15, 2, 16, 2))
sketch1.addConstraint(Sketcher.Constraint("Horizontal", 14, 2, 17, 2))
sketch1.addConstraint(Sketcher.Constraint("Horizontal", 19, 2, 20, 2))
sketch1.addConstraint(Sketcher.Constraint("Horizontal", 18, 2, 21, 2))
sketch1.addConstraint(Sketcher.Constraint("Equal", 6, 8))
sketch1.addConstraint(Sketcher.Constraint("Equal", 10, 12))
sketch1.addConstraint(Sketcher.Constraint("Equal", 14, 16))
sketch1.addConstraint(Sketcher.Constraint("Equal", 18, 20))
sketch1.addConstraint(Sketcher.Constraint("Equal", 82, 5))
sketch1.addConstraint(Sketcher.Constraint("DistanceX", 4, 2, 4, 1, Q("0.02 in")))
sketch1.addConstraint(Sketcher.Constraint("DistanceX", 1, 1, 1, 2, Q("0.7874 in")))
sketch1.addConstraint(Sketcher.Constraint("DistanceY", 0, 1, 0, 2, Q("0.1574 in")))
sketch1.addConstraint(Sketcher.Constraint("DistanceX", 8, 2, -1, 1, Q("0.2856 in")))
sketch1.addConstraint(Sketcher.Constraint("DistanceX", 16, 2, -1, 1, Q("0.1281 in")))
sketch1.addConstraint(Sketcher.Constraint("DistanceX", 4, 2, -1, 1, 9.254))
sketch1.addConstraint(Sketcher.Constraint("DistanceY", -1, 1, 4, 2, 1.254))
sketch1.addConstraint(Sketcher.Constraint("DistanceX", 12, 2, -1, 1, 5.254))
sketch1.addConstraint(Sketcher.Constraint("DistanceX", 20, 2, -1, 1, 1.254))
pad1 = body.newObject("PartDesign::Pad", "Pad")
pad1.Profile = sketch1
pad1.Length = Q("0.079 in")
pad1.Reversed = True

doc.recompute()
